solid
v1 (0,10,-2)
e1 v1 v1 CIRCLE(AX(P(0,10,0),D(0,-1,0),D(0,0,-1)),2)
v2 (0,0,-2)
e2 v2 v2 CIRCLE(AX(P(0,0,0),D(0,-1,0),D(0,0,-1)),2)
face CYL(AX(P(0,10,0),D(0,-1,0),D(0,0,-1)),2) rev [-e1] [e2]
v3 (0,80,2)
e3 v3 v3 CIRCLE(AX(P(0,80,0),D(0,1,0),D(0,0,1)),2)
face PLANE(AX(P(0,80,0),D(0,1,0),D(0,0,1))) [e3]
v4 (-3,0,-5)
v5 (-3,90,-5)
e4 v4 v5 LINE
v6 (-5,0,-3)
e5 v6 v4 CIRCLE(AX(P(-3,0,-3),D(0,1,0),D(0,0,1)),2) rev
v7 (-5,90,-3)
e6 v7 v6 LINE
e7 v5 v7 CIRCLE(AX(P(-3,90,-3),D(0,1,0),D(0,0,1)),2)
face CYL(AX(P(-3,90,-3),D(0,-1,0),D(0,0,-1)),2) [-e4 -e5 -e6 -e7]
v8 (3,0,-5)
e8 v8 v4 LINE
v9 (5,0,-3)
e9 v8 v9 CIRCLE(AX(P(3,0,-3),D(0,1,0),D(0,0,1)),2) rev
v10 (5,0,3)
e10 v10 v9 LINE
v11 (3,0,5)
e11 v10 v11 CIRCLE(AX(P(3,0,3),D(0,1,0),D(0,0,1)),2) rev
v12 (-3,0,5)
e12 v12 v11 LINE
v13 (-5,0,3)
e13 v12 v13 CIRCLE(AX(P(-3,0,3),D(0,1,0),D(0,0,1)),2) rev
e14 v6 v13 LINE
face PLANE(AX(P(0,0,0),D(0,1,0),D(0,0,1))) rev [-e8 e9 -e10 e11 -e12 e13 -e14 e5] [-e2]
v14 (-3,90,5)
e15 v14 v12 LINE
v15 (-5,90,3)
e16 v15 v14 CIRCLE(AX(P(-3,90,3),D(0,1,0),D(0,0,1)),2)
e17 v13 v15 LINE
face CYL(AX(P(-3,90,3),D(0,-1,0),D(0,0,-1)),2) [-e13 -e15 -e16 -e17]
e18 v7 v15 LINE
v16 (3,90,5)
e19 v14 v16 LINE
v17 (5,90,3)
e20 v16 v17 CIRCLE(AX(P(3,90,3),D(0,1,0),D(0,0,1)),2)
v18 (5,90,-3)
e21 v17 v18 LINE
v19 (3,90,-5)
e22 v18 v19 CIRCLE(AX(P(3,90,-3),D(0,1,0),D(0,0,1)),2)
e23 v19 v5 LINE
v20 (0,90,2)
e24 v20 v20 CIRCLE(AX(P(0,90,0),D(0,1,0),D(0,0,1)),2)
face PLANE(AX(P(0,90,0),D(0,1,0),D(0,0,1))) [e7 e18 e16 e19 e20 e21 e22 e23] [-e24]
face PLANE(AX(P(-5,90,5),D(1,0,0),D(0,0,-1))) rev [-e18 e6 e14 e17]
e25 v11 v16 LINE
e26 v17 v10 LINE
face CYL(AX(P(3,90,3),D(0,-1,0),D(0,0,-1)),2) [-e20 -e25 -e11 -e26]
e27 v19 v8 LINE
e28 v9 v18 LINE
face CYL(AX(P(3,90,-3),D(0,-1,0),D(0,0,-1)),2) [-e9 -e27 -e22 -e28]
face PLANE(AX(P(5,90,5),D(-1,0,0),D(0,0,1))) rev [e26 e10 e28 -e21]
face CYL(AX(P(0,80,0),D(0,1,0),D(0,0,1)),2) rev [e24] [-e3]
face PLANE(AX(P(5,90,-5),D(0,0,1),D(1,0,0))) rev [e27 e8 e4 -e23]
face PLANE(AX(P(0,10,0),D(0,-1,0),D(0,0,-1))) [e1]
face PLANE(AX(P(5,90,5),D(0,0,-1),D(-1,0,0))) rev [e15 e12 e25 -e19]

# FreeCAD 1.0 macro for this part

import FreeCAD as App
import Part
import Sketcher
Q = App.Units.Quantity


def edges_at(feature, points):
    """Names of the edges that pass closest to the given points."""
    edges = feature.Shape.Edges
    near = lambda p: min(range(len(edges)), key=lambda i: edges[i].distToShape(Part.Vertex(*p))[0])
    return sorted({f"Edge{near(p) + 1}" for p in points})

doc = App.newDocument("Part")
body = doc.addObject("PartDesign::Body", "Body")

# Sketch on XZ plane
sketch1 = body.newObject("Sketcher::SketchObject", "Sketch")
sketch1.AttachmentSupport = (doc.getObject("XZ_Plane"), [""])
sketch1.MapMode = "FlatFace"
sketch1.addGeometry(Part.LineSegment(App.Vector(-5, -5, 0), App.Vector(-5, 5, 0)), False)
sketch1.addGeometry(Part.LineSegment(App.Vector(-5, 5, 0), App.Vector(5, 5, 0)), False)
sketch1.addGeometry(Part.LineSegment(App.Vector(5, 5, 0), App.Vector(5, -5, 0)), False)
sketch1.addGeometry(Part.LineSegment(App.Vector(5, -5, 0), App.Vector(-5, -5, 0)), False)
sketch1.addConstraint(Sketcher.Constraint("Coincident", 0, 2, 1, 1))
sketch1.addConstraint(Sketcher.Constraint("Coincident", 1, 2, 2, 1))
sketch1.addConstraint(Sketcher.Constraint("Coincident", 2, 2, 3, 1))
sketch1.addConstraint(Sketcher.Constraint("Coincident", 3, 2, 0, 1))
sketch1.addConstraint(Sketcher.Constraint("Vertical", 0))
sketch1.addConstraint(Sketcher.Constraint("Horizontal", 1))
sketch1.addConstraint(Sketcher.Constraint("Vertical", 2))
sketch1.addConstraint(Sketcher.Constraint("Horizontal", 3))
sketch1.addConstraint(Sketcher.Constraint("Symmetric", 0, 2, 2, 2, -1, 1))
sketch1.addConstraint(Sketcher.Constraint("Equal", 3, 0))
sketch1.addConstraint(Sketcher.Constraint("DistanceX", 1, 1, 1, 2, Q("10 mm")))
pad1 = body.newObject("PartDesign::Pad", "Pad")
pad1.Profile = sketch1
pad1.Length = 90
pad1.Reversed = True

# Sketch on XZ plane
sketch2 = body.newObject("Sketcher::SketchObject", "Sketch001")
sketch2.AttachmentSupport = (doc.getObject("XZ_Plane"), [""])
sketch2.MapMode = "FlatFace"
sketch2.AttachmentOffset = App.Placement(App.Vector(0, 0, -90), App.Rotation())
sketch2.addGeometry(Part.Circle(App.Vector(0, 0, 0), App.Vector(0, 0, 1), 2), False)
sketch2.addConstraint(Sketcher.Constraint("Coincident", 0, 3, -1, 1))
sketch2.addConstraint(Sketcher.Constraint("Diameter", 0, Q("4 mm")))
pocket1 = body.newObject("PartDesign::Pocket", "Pocket")
pocket1.Profile = sketch2
pocket1.Length = 10
pocket1.Reversed = True

# Sketch on XZ plane
sketch3 = body.newObject("Sketcher::SketchObject", "Sketch002")
sketch3.AttachmentSupport = (doc.getObject("XZ_Plane"), [""])
sketch3.MapMode = "FlatFace"
sketch3.AttachmentOffset = App.Placement(App.Vector(0, 0, -10), App.Rotation())
sketch3.addGeometry(Part.Circle(App.Vector(0, 0, 0), App.Vector(0, 0, 1), 2), False)
sketch3.addConstraint(Sketcher.Constraint("Coincident", 0, 3, -1, 1))
sketch3.addConstraint(Sketcher.Constraint("Diameter", 0, Q("4 mm")))
pocket2 = body.newObject("PartDesign::Pocket", "Pocket001")
pocket2.Profile = sketch3
pocket2.Length = 10
pocket2.Reversed = True
doc.recompute()

fillet = body.newObject("PartDesign::Fillet", "Fillet")
fillet.Base = (pocket2, edges_at(pocket2, [
    (-5, 45, -5),
    (5, 45, -5),
    (5, 45, 5),
    (-5, 45, 5),
]))
fillet.Radius = 2

doc.recompute()
